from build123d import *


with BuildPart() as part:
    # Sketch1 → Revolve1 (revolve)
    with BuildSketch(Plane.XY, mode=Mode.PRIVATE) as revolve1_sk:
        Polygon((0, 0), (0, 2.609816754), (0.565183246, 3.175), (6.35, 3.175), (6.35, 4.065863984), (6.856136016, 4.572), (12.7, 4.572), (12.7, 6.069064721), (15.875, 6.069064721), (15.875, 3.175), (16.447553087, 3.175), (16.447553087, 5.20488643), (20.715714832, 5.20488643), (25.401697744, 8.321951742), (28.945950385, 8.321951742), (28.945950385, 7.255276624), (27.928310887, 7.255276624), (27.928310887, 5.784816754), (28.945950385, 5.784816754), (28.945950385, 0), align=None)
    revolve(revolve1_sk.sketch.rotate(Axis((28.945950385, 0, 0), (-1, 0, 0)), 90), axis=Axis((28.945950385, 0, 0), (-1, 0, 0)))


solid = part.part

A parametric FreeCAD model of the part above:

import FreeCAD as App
import Part
import Sketcher

V = App.Vector
Q = App.Units.Quantity


def add_polygon(sketch, points):
    """Adds a closed chain of lines whose ends are joined by coincident constraints."""
    first, n = sketch.GeometryCount, len(points)
    for a, b in zip(points, points[1:] + points[:1]):
        sketch.addGeometry(Part.LineSegment(App.Vector(*a, 0), App.Vector(*b, 0)), False)
    for i in range(n):
        sketch.addConstraint(Sketcher.Constraint("Coincident", first + i, 2, first + (i + 1) % n, 1))

doc = App.newDocument("Part")
params = doc.addObject("Spreadsheet::Sheet", "Params")
for row, (alias, value) in enumerate([
    ("sketch1_width", "0.125 in"),
    ("revolution_angle", "360 deg"),
], start=1):
    params.set(f"A{row}", alias)
    params.set(f"B{row}", "=" + value)
    params.setAlias(f"B{row}", alias)

body = doc.addObject("PartDesign::Body", "Body")

# Sketch on XY plane
sketch1 = doc.addObject("Sketcher::SketchObject", "Sketch")
body.addObject(sketch1)
sketch1.AttachmentSupport = (doc.XY_Plane, [""])
sketch1.MapMode = "FlatFace"
add_polygon(sketch1, [(0, 2.609817), (0, 0), (28.94595, 0), (28.94595, 5.784817), (27.928311, 5.784817), (27.928311, 7.255277), (28.94595, 7.255277), (28.94595, 8.321952), (25.401698, 8.321952), (20.715715, 5.204886), (16.447553, 5.204886), (16.447553, 3.175), (15.875, 3.175), (15.875, 6.069065), (12.7, 6.069065), (12.7, 4.572), (6.856136, 4.572), (6.35, 4.065864), (6.35, 3.175), (0.565183, 3.175)])  # lines 0-19
sketch1.addConstraint([
    Sketcher.Constraint("Vertical", 0),
    Sketcher.Constraint("Horizontal", 1),
    Sketcher.Constraint("Vertical", 2),
    Sketcher.Constraint("Horizontal", 3),
    Sketcher.Constraint("Vertical", 4),
    Sketcher.Constraint("Horizontal", 5),
    Sketcher.Constraint("Vertical", 6),
    Sketcher.Constraint("Horizontal", 7),
    Sketcher.Constraint("Horizontal", 9),
    Sketcher.Constraint("Vertical", 10),
    Sketcher.Constraint("Horizontal", 11),
    Sketcher.Constraint("Vertical", 12),
    Sketcher.Constraint("Horizontal", 13),
    Sketcher.Constraint("Vertical", 14),
    Sketcher.Constraint("Horizontal", 15),
    Sketcher.Constraint("Vertical", 17),
    Sketcher.Constraint("Horizontal", 18),
    Sketcher.Constraint("Coincident", 0, 2, -1, 1),
    Sketcher.Constraint("Parallel", 16, 19),
    Sketcher.Constraint("Horizontal", 11, 2, 17, 2),
    Sketcher.Constraint("Vertical", 2, 2, 5, 2),
    Sketcher.Constraint("Equal", 18, 2),
    Sketcher.Constraint("Angle", 16, Q("-135 deg")),
    Sketcher.Constraint("DistanceX", -1, 1, 13, 2, Q("0.5 in")),
    Sketcher.Constraint("DistanceX", 13, 2, 13, 1, Q("0.125 in")),
    Sketcher.Constraint("DistanceY", -1, 1, 14, 2, Q("0.18 in")),
    Sketcher.Constraint("DistanceX", -1, 1, 16, 2, Q("0.25 in")),
    Sketcher.Constraint("DistanceY", -1, 1, 10, 2, Q("0.125 in")),
    Sketcher.Constraint("DistanceX", 1, 1, 1, 2, Q("28.94595 mm")),
    Sketcher.Constraint("DistanceX", 3, 2, 3, 1, Q("1.017639 mm")),
    Sketcher.Constraint("DistanceX", 9, 2, 9, 1, Q("4.268162 mm")),
    Sketcher.Constraint("DistanceY", 4, 1, 4, 2, Q("1.47046 mm")),
    Sketcher.Constraint("DistanceY", 16, 2, 13, 2, Q("2.003201 mm")),
    Sketcher.Constraint("Distance", 19, Q("0.79929 mm")),
    Sketcher.Constraint("DistanceX", 7, 2, 7, 1, Q("3.544253 mm")),
    Sketcher.Constraint("DistanceX", 11, 2, 11, 1, Q("0.572553 mm")),
    Sketcher.Constraint("DistanceX", 15, 2, 15, 1, Q("5.843864 mm")),
    Sketcher.Constraint("DistanceY", 6, 1, 6, 2, Q("1.066675 mm")),
    Sketcher.Constraint("DistanceY", 10, 2, 10, 1, Q("2.029886 mm")),
])
sketch1.setExpression("Constraints[44]", "Params.sketch1_width")
revolution = doc.addObject("PartDesign::Revolution", "Revolution")
body.addObject(revolution)
revolution.Profile = sketch1
revolution.ReferenceAxis = (sketch1, ["H_Axis"])
revolution.setExpression("Angle", "Params.revolution_angle")

doc.recompute()
